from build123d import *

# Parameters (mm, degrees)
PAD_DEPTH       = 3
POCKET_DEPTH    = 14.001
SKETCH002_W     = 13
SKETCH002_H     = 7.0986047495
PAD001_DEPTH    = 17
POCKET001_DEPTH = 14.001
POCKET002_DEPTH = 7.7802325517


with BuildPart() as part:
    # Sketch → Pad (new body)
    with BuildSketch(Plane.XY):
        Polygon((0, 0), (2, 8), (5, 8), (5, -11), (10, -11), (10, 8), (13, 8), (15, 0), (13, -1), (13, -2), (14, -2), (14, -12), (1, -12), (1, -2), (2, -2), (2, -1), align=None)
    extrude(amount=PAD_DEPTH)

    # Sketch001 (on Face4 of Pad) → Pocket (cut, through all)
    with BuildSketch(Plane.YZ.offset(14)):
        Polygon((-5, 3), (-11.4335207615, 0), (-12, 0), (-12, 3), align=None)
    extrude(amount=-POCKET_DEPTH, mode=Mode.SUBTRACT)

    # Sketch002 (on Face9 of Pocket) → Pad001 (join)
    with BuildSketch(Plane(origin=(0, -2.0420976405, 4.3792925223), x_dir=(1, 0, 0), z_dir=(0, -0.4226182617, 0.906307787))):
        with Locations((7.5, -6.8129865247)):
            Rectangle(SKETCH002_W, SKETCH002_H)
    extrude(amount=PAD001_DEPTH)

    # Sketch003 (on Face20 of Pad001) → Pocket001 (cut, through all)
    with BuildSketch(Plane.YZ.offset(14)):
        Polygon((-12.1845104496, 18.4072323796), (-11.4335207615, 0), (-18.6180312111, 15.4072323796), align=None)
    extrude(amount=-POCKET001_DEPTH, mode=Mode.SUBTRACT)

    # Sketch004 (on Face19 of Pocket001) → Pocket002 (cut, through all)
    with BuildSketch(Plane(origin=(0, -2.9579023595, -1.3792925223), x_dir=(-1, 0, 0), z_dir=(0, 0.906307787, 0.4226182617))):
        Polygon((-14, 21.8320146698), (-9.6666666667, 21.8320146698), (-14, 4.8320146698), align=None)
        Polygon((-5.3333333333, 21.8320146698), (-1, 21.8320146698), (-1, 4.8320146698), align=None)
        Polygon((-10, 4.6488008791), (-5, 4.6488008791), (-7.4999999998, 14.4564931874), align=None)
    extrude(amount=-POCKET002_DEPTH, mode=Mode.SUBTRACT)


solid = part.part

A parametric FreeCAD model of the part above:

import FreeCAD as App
import Part
import Sketcher

V = App.Vector
Q = App.Units.Quantity


def add_polygon(sketch, points):
    """Adds a closed chain of lines whose ends are joined by coincident constraints."""
    first, n = sketch.GeometryCount, len(points)
    for a, b in zip(points, points[1:] + points[:1]):
        sketch.addGeometry(Part.LineSegment(App.Vector(*a, 0), App.Vector(*b, 0)), False)
    for i in range(n):
        sketch.addConstraint(Sketcher.Constraint("Coincident", first + i, 2, first + (i + 1) % n, 1))

doc = App.newDocument("Part")
body = doc.addObject("PartDesign::Body", "Body")

sketch1 = doc.addObject("Sketcher::SketchObject", "Sketch")
body.addObject(sketch1)
sketch1.AttachmentSupport = (doc.XY_Plane, [""])
sketch1.MapMode = "FlatFace"
add_polygon(sketch1, [(2, 8), (0, 0), (2, -1), (2, -2), (1, -2), (1, -12), (14, -12), (14, -2), (13, -2), (13, -1), (15, 0), (13, 8), (10, 8), (10, -11), (5, -11), (5, 8)])
sketch1.addConstraint(Sketcher.Constraint("Vertical", 2))
sketch1.addConstraint(Sketcher.Constraint("Horizontal", 3))
sketch1.addConstraint(Sketcher.Constraint("Vertical", 4))
sketch1.addConstraint(Sketcher.Constraint("Horizontal", 5))
sketch1.addConstraint(Sketcher.Constraint("Vertical", 6))
sketch1.addConstraint(Sketcher.Constraint("Horizontal", 7))
sketch1.addConstraint(Sketcher.Constraint("Vertical", 8))
sketch1.addConstraint(Sketcher.Constraint("Horizontal", 11))
sketch1.addConstraint(Sketcher.Constraint("Vertical", 12))
sketch1.addConstraint(Sketcher.Constraint("Horizontal", 13))
sketch1.addConstraint(Sketcher.Constraint("Vertical", 14))
sketch1.addConstraint(Sketcher.Constraint("Horizontal", 15))
sketch1.addConstraint(Sketcher.Constraint("Coincident", 0, 2, -1, 1))
sketch1.addConstraint(Sketcher.Constraint("PointOnObject", 9, 2, -1))
sketch1.addConstraint(Sketcher.Constraint("Horizontal", 3, 2, 6, 2))
sketch1.addConstraint(Sketcher.Constraint("Horizontal", 1, 2, 8, 2))
sketch1.addConstraint(Sketcher.Constraint("Horizontal", 11, 2, 14, 2))
sketch1.addConstraint(Sketcher.Constraint("Vertical", 8, 2, 10, 2))
sketch1.addConstraint(Sketcher.Constraint("Vertical", 2, 2, 15, 2))
sketch1.addConstraint(Sketcher.Constraint("Equal", 3, 7))
sketch1.addConstraint(Sketcher.Constraint("Equal", 11, 15))
sketch1.addConstraint(Sketcher.Constraint("Equal", 7, 2))
sketch1.addConstraint(Sketcher.Constraint("Equal", 1, 9))
sketch1.addConstraint(Sketcher.Constraint("DistanceX", 3, 2, 3, 1, 1.0))
sketch1.addConstraint(Sketcher.Constraint("DistanceX", 5, 1, 5, 2, 13.0))
sketch1.addConstraint(Sketcher.Constraint("DistanceX", 11, 2, 11, 1, 3.0))
sketch1.addConstraint(Sketcher.Constraint("DistanceY", 4, 2, 4, 1, 10.0))
sketch1.addConstraint(Sketcher.Constraint("DistanceY", 12, 2, 12, 1, 19.0))
sketch1.addConstraint(Sketcher.Constraint("DistanceX", -1, 1, 1, 2, 2.0))
sketch1.addConstraint(Sketcher.Constraint("DistanceY", 1, 2, -1, 1, 1.0))
sketch1.addConstraint(Sketcher.Constraint("DistanceY", -1, 1, 10, 2, 8.0))
pad1 = doc.addObject("PartDesign::Pad", "Pad")
body.addObject(pad1)
pad1.Profile = sketch1
pad1.Length = 3

sketch2 = doc.addObject("Sketcher::SketchObject", "Sketch001")
body.addObject(sketch2)
sketch2.AttachmentSupport = (doc.YZ_Plane, [""])
sketch2.MapMode = "FlatFace"
sketch2.AttachmentOffset = App.Placement(V(0, 0, 14), App.Rotation())
add_polygon(sketch2, [(-11.433521, 0), (-5, 3), (-12, 3), (-12, 0)])
sketch2.addConstraint(Sketcher.Constraint("Horizontal", 1))
sketch2.addConstraint(Sketcher.Constraint("Vertical", 2))
sketch2.addConstraint(Sketcher.Constraint("Horizontal", 3))
sketch2.addConstraint(Sketcher.Constraint("PointOnObject", 2, 2, -1))
sketch2.addConstraint(Sketcher.Constraint("DistanceX", 1, 2, 1, 1, 7.0))
sketch2.addConstraint(Sketcher.Constraint("DistanceY", 2, 2, 2, 1, 3.0))
sketch2.addConstraint(Sketcher.Constraint("Angle", 0, Q("25 deg")))
sketch2.addConstraint(Sketcher.Constraint("DistanceX", 0, 2, -1, 1, 5.0))
pocket1 = doc.addObject("PartDesign::Pocket", "Pocket")
body.addObject(pocket1)
pocket1.Profile = sketch2
pocket1.Type = "ThroughAll"

sketch3 = doc.addObject("Sketcher::SketchObject", "Sketch002")
body.addObject(sketch3)
sketch3.Placement = App.Placement(V(0, -2.042098, 4.379293), App.Rotation(V(1, 0, 0), V(0, 0.906307787, 0.422618262), V(0, -0.422618262, 0.906307787), "ZXY"))
add_polygon(sketch3, [(1, -3.263684), (1, -10.362289), (14, -10.362289), (14, -3.263684)])
sketch3.addConstraint(Sketcher.Constraint("Vertical", 0))
sketch3.addConstraint(Sketcher.Constraint("Horizontal", 1))
sketch3.addConstraint(Sketcher.Constraint("Vertical", 2))
sketch3.addConstraint(Sketcher.Constraint("Horizontal", 3))
sketch3.addConstraint(Sketcher.Constraint("DistanceX", 1, 1, 1, 2, 13.0))
sketch3.addConstraint(Sketcher.Constraint("DistanceX", -1, 1, 0, 2, 1.0))
sketch3.addConstraint(Sketcher.Constraint("DistanceY", 0, 2, 0, 1, 7.098605))
sketch3.addConstraint(Sketcher.Constraint("DistanceY", 0, 2, -1, 1, 10.362289))
pad2 = doc.addObject("PartDesign::Pad", "Pad001")
body.addObject(pad2)
pad2.Profile = sketch3
pad2.Length = 17

sketch4 = doc.addObject("Sketcher::SketchObject", "Sketch003")
body.addObject(sketch4)
sketch4.AttachmentSupport = (doc.YZ_Plane, [""])
sketch4.MapMode = "FlatFace"
sketch4.AttachmentOffset = App.Placement(V(0, 0, 14), App.Rotation())
add_polygon(sketch4, [(-11.433521, 0), (-12.18451, 18.407232), (-18.618031, 15.407232)])
sketch4.addConstraint(Sketcher.Constraint("PointOnObject", 2, 2, -1))
sketch4.addConstraint(Sketcher.Constraint("Perpendicular", 1, 2))
sketch4.addConstraint(Sketcher.Constraint("Angle", 1, Q("-155 deg")))
sketch4.addConstraint(Sketcher.Constraint("Distance", 2, 17.0))
sketch4.addConstraint(Sketcher.Constraint("DistanceY", 1, 2, 0, 2, 3.0))
sketch4.addConstraint(Sketcher.Constraint("DistanceX", 0, 2, -1, 1, 12.18451))
pocket2 = doc.addObject("PartDesign::Pocket", "Pocket001")
body.addObject(pocket2)
pocket2.Profile = sketch4
pocket2.Type = "ThroughAll"

sketch5 = doc.addObject("Sketcher::SketchObject", "Sketch004")
body.addObject(sketch5)
sketch5.Placement = App.Placement(V(0, -2.957902, -1.379293), App.Rotation(V(-1, 0, 0), V(0, -0.422618262, 0.906307787), V(0, 0.906307787, 0.422618262), "ZXY"))
add_polygon(sketch5, [(-9.666667, 21.832015), (-14, 21.832015), (-14, 4.832015)])
add_polygon(sketch5, [(-1, 21.832015), (-5.333333, 21.832015), (-1, 4.832015)])
add_polygon(sketch5, [(-10, 4.648801), (-5, 4.648801), (-7.5, 14.456493)])
sketch5.addConstraint(Sketcher.Constraint("Horizontal", 0))
sketch5.addConstraint(Sketcher.Constraint("Vertical", 1))
sketch5.addConstraint(Sketcher.Constraint("Horizontal", 3))
sketch5.addConstraint(Sketcher.Constraint("Vertical", 5))
sketch5.addConstraint(Sketcher.Constraint("Horizontal", 6))
sketch5.addConstraint(Sketcher.Constraint("Parallel", 4, 7))
sketch5.addConstraint(Sketcher.Constraint("Parallel", 2, 8))
sketch5.addConstraint(Sketcher.Constraint("Horizontal", 2, 2, 3, 2))
sketch5.addConstraint(Sketcher.Constraint("Horizontal", 1, 2, 4, 2))
sketch5.addConstraint(Sketcher.Constraint("Equal", 0, 3))
sketch5.addConstraint(Sketcher.Constraint("DistanceX", 6, 1, 6, 2, 5.0))
sketch5.addConstraint(Sketcher.Constraint("DistanceY", 1, 2, 1, 1, 17.0))
sketch5.addConstraint(Sketcher.Constraint("DistanceX", 0, 2, -1, 1, 14.0))
sketch5.addConstraint(Sketcher.Constraint("DistanceX", 4, 2, -1, 1, 1.0))
sketch5.addConstraint(Sketcher.Constraint("DistanceX", 6, 2, -1, 1, 5.0))
sketch5.addConstraint(Sketcher.Constraint("DistanceY", -1, 1, 6, 2, 4.648801))
sketch5.addConstraint(Sketcher.Constraint("DistanceX", 0, 2, 0, 1, 4.333333))
sketch5.addConstraint(Sketcher.Constraint("DistanceY", 7, 2, 2, 2, 7.375521))
pocket3 = doc.addObject("PartDesign::Pocket", "Pocket002")
body.addObject(pocket3)
pocket3.Profile = sketch5
pocket3.Type = "ThroughAll"

doc.recompute()
